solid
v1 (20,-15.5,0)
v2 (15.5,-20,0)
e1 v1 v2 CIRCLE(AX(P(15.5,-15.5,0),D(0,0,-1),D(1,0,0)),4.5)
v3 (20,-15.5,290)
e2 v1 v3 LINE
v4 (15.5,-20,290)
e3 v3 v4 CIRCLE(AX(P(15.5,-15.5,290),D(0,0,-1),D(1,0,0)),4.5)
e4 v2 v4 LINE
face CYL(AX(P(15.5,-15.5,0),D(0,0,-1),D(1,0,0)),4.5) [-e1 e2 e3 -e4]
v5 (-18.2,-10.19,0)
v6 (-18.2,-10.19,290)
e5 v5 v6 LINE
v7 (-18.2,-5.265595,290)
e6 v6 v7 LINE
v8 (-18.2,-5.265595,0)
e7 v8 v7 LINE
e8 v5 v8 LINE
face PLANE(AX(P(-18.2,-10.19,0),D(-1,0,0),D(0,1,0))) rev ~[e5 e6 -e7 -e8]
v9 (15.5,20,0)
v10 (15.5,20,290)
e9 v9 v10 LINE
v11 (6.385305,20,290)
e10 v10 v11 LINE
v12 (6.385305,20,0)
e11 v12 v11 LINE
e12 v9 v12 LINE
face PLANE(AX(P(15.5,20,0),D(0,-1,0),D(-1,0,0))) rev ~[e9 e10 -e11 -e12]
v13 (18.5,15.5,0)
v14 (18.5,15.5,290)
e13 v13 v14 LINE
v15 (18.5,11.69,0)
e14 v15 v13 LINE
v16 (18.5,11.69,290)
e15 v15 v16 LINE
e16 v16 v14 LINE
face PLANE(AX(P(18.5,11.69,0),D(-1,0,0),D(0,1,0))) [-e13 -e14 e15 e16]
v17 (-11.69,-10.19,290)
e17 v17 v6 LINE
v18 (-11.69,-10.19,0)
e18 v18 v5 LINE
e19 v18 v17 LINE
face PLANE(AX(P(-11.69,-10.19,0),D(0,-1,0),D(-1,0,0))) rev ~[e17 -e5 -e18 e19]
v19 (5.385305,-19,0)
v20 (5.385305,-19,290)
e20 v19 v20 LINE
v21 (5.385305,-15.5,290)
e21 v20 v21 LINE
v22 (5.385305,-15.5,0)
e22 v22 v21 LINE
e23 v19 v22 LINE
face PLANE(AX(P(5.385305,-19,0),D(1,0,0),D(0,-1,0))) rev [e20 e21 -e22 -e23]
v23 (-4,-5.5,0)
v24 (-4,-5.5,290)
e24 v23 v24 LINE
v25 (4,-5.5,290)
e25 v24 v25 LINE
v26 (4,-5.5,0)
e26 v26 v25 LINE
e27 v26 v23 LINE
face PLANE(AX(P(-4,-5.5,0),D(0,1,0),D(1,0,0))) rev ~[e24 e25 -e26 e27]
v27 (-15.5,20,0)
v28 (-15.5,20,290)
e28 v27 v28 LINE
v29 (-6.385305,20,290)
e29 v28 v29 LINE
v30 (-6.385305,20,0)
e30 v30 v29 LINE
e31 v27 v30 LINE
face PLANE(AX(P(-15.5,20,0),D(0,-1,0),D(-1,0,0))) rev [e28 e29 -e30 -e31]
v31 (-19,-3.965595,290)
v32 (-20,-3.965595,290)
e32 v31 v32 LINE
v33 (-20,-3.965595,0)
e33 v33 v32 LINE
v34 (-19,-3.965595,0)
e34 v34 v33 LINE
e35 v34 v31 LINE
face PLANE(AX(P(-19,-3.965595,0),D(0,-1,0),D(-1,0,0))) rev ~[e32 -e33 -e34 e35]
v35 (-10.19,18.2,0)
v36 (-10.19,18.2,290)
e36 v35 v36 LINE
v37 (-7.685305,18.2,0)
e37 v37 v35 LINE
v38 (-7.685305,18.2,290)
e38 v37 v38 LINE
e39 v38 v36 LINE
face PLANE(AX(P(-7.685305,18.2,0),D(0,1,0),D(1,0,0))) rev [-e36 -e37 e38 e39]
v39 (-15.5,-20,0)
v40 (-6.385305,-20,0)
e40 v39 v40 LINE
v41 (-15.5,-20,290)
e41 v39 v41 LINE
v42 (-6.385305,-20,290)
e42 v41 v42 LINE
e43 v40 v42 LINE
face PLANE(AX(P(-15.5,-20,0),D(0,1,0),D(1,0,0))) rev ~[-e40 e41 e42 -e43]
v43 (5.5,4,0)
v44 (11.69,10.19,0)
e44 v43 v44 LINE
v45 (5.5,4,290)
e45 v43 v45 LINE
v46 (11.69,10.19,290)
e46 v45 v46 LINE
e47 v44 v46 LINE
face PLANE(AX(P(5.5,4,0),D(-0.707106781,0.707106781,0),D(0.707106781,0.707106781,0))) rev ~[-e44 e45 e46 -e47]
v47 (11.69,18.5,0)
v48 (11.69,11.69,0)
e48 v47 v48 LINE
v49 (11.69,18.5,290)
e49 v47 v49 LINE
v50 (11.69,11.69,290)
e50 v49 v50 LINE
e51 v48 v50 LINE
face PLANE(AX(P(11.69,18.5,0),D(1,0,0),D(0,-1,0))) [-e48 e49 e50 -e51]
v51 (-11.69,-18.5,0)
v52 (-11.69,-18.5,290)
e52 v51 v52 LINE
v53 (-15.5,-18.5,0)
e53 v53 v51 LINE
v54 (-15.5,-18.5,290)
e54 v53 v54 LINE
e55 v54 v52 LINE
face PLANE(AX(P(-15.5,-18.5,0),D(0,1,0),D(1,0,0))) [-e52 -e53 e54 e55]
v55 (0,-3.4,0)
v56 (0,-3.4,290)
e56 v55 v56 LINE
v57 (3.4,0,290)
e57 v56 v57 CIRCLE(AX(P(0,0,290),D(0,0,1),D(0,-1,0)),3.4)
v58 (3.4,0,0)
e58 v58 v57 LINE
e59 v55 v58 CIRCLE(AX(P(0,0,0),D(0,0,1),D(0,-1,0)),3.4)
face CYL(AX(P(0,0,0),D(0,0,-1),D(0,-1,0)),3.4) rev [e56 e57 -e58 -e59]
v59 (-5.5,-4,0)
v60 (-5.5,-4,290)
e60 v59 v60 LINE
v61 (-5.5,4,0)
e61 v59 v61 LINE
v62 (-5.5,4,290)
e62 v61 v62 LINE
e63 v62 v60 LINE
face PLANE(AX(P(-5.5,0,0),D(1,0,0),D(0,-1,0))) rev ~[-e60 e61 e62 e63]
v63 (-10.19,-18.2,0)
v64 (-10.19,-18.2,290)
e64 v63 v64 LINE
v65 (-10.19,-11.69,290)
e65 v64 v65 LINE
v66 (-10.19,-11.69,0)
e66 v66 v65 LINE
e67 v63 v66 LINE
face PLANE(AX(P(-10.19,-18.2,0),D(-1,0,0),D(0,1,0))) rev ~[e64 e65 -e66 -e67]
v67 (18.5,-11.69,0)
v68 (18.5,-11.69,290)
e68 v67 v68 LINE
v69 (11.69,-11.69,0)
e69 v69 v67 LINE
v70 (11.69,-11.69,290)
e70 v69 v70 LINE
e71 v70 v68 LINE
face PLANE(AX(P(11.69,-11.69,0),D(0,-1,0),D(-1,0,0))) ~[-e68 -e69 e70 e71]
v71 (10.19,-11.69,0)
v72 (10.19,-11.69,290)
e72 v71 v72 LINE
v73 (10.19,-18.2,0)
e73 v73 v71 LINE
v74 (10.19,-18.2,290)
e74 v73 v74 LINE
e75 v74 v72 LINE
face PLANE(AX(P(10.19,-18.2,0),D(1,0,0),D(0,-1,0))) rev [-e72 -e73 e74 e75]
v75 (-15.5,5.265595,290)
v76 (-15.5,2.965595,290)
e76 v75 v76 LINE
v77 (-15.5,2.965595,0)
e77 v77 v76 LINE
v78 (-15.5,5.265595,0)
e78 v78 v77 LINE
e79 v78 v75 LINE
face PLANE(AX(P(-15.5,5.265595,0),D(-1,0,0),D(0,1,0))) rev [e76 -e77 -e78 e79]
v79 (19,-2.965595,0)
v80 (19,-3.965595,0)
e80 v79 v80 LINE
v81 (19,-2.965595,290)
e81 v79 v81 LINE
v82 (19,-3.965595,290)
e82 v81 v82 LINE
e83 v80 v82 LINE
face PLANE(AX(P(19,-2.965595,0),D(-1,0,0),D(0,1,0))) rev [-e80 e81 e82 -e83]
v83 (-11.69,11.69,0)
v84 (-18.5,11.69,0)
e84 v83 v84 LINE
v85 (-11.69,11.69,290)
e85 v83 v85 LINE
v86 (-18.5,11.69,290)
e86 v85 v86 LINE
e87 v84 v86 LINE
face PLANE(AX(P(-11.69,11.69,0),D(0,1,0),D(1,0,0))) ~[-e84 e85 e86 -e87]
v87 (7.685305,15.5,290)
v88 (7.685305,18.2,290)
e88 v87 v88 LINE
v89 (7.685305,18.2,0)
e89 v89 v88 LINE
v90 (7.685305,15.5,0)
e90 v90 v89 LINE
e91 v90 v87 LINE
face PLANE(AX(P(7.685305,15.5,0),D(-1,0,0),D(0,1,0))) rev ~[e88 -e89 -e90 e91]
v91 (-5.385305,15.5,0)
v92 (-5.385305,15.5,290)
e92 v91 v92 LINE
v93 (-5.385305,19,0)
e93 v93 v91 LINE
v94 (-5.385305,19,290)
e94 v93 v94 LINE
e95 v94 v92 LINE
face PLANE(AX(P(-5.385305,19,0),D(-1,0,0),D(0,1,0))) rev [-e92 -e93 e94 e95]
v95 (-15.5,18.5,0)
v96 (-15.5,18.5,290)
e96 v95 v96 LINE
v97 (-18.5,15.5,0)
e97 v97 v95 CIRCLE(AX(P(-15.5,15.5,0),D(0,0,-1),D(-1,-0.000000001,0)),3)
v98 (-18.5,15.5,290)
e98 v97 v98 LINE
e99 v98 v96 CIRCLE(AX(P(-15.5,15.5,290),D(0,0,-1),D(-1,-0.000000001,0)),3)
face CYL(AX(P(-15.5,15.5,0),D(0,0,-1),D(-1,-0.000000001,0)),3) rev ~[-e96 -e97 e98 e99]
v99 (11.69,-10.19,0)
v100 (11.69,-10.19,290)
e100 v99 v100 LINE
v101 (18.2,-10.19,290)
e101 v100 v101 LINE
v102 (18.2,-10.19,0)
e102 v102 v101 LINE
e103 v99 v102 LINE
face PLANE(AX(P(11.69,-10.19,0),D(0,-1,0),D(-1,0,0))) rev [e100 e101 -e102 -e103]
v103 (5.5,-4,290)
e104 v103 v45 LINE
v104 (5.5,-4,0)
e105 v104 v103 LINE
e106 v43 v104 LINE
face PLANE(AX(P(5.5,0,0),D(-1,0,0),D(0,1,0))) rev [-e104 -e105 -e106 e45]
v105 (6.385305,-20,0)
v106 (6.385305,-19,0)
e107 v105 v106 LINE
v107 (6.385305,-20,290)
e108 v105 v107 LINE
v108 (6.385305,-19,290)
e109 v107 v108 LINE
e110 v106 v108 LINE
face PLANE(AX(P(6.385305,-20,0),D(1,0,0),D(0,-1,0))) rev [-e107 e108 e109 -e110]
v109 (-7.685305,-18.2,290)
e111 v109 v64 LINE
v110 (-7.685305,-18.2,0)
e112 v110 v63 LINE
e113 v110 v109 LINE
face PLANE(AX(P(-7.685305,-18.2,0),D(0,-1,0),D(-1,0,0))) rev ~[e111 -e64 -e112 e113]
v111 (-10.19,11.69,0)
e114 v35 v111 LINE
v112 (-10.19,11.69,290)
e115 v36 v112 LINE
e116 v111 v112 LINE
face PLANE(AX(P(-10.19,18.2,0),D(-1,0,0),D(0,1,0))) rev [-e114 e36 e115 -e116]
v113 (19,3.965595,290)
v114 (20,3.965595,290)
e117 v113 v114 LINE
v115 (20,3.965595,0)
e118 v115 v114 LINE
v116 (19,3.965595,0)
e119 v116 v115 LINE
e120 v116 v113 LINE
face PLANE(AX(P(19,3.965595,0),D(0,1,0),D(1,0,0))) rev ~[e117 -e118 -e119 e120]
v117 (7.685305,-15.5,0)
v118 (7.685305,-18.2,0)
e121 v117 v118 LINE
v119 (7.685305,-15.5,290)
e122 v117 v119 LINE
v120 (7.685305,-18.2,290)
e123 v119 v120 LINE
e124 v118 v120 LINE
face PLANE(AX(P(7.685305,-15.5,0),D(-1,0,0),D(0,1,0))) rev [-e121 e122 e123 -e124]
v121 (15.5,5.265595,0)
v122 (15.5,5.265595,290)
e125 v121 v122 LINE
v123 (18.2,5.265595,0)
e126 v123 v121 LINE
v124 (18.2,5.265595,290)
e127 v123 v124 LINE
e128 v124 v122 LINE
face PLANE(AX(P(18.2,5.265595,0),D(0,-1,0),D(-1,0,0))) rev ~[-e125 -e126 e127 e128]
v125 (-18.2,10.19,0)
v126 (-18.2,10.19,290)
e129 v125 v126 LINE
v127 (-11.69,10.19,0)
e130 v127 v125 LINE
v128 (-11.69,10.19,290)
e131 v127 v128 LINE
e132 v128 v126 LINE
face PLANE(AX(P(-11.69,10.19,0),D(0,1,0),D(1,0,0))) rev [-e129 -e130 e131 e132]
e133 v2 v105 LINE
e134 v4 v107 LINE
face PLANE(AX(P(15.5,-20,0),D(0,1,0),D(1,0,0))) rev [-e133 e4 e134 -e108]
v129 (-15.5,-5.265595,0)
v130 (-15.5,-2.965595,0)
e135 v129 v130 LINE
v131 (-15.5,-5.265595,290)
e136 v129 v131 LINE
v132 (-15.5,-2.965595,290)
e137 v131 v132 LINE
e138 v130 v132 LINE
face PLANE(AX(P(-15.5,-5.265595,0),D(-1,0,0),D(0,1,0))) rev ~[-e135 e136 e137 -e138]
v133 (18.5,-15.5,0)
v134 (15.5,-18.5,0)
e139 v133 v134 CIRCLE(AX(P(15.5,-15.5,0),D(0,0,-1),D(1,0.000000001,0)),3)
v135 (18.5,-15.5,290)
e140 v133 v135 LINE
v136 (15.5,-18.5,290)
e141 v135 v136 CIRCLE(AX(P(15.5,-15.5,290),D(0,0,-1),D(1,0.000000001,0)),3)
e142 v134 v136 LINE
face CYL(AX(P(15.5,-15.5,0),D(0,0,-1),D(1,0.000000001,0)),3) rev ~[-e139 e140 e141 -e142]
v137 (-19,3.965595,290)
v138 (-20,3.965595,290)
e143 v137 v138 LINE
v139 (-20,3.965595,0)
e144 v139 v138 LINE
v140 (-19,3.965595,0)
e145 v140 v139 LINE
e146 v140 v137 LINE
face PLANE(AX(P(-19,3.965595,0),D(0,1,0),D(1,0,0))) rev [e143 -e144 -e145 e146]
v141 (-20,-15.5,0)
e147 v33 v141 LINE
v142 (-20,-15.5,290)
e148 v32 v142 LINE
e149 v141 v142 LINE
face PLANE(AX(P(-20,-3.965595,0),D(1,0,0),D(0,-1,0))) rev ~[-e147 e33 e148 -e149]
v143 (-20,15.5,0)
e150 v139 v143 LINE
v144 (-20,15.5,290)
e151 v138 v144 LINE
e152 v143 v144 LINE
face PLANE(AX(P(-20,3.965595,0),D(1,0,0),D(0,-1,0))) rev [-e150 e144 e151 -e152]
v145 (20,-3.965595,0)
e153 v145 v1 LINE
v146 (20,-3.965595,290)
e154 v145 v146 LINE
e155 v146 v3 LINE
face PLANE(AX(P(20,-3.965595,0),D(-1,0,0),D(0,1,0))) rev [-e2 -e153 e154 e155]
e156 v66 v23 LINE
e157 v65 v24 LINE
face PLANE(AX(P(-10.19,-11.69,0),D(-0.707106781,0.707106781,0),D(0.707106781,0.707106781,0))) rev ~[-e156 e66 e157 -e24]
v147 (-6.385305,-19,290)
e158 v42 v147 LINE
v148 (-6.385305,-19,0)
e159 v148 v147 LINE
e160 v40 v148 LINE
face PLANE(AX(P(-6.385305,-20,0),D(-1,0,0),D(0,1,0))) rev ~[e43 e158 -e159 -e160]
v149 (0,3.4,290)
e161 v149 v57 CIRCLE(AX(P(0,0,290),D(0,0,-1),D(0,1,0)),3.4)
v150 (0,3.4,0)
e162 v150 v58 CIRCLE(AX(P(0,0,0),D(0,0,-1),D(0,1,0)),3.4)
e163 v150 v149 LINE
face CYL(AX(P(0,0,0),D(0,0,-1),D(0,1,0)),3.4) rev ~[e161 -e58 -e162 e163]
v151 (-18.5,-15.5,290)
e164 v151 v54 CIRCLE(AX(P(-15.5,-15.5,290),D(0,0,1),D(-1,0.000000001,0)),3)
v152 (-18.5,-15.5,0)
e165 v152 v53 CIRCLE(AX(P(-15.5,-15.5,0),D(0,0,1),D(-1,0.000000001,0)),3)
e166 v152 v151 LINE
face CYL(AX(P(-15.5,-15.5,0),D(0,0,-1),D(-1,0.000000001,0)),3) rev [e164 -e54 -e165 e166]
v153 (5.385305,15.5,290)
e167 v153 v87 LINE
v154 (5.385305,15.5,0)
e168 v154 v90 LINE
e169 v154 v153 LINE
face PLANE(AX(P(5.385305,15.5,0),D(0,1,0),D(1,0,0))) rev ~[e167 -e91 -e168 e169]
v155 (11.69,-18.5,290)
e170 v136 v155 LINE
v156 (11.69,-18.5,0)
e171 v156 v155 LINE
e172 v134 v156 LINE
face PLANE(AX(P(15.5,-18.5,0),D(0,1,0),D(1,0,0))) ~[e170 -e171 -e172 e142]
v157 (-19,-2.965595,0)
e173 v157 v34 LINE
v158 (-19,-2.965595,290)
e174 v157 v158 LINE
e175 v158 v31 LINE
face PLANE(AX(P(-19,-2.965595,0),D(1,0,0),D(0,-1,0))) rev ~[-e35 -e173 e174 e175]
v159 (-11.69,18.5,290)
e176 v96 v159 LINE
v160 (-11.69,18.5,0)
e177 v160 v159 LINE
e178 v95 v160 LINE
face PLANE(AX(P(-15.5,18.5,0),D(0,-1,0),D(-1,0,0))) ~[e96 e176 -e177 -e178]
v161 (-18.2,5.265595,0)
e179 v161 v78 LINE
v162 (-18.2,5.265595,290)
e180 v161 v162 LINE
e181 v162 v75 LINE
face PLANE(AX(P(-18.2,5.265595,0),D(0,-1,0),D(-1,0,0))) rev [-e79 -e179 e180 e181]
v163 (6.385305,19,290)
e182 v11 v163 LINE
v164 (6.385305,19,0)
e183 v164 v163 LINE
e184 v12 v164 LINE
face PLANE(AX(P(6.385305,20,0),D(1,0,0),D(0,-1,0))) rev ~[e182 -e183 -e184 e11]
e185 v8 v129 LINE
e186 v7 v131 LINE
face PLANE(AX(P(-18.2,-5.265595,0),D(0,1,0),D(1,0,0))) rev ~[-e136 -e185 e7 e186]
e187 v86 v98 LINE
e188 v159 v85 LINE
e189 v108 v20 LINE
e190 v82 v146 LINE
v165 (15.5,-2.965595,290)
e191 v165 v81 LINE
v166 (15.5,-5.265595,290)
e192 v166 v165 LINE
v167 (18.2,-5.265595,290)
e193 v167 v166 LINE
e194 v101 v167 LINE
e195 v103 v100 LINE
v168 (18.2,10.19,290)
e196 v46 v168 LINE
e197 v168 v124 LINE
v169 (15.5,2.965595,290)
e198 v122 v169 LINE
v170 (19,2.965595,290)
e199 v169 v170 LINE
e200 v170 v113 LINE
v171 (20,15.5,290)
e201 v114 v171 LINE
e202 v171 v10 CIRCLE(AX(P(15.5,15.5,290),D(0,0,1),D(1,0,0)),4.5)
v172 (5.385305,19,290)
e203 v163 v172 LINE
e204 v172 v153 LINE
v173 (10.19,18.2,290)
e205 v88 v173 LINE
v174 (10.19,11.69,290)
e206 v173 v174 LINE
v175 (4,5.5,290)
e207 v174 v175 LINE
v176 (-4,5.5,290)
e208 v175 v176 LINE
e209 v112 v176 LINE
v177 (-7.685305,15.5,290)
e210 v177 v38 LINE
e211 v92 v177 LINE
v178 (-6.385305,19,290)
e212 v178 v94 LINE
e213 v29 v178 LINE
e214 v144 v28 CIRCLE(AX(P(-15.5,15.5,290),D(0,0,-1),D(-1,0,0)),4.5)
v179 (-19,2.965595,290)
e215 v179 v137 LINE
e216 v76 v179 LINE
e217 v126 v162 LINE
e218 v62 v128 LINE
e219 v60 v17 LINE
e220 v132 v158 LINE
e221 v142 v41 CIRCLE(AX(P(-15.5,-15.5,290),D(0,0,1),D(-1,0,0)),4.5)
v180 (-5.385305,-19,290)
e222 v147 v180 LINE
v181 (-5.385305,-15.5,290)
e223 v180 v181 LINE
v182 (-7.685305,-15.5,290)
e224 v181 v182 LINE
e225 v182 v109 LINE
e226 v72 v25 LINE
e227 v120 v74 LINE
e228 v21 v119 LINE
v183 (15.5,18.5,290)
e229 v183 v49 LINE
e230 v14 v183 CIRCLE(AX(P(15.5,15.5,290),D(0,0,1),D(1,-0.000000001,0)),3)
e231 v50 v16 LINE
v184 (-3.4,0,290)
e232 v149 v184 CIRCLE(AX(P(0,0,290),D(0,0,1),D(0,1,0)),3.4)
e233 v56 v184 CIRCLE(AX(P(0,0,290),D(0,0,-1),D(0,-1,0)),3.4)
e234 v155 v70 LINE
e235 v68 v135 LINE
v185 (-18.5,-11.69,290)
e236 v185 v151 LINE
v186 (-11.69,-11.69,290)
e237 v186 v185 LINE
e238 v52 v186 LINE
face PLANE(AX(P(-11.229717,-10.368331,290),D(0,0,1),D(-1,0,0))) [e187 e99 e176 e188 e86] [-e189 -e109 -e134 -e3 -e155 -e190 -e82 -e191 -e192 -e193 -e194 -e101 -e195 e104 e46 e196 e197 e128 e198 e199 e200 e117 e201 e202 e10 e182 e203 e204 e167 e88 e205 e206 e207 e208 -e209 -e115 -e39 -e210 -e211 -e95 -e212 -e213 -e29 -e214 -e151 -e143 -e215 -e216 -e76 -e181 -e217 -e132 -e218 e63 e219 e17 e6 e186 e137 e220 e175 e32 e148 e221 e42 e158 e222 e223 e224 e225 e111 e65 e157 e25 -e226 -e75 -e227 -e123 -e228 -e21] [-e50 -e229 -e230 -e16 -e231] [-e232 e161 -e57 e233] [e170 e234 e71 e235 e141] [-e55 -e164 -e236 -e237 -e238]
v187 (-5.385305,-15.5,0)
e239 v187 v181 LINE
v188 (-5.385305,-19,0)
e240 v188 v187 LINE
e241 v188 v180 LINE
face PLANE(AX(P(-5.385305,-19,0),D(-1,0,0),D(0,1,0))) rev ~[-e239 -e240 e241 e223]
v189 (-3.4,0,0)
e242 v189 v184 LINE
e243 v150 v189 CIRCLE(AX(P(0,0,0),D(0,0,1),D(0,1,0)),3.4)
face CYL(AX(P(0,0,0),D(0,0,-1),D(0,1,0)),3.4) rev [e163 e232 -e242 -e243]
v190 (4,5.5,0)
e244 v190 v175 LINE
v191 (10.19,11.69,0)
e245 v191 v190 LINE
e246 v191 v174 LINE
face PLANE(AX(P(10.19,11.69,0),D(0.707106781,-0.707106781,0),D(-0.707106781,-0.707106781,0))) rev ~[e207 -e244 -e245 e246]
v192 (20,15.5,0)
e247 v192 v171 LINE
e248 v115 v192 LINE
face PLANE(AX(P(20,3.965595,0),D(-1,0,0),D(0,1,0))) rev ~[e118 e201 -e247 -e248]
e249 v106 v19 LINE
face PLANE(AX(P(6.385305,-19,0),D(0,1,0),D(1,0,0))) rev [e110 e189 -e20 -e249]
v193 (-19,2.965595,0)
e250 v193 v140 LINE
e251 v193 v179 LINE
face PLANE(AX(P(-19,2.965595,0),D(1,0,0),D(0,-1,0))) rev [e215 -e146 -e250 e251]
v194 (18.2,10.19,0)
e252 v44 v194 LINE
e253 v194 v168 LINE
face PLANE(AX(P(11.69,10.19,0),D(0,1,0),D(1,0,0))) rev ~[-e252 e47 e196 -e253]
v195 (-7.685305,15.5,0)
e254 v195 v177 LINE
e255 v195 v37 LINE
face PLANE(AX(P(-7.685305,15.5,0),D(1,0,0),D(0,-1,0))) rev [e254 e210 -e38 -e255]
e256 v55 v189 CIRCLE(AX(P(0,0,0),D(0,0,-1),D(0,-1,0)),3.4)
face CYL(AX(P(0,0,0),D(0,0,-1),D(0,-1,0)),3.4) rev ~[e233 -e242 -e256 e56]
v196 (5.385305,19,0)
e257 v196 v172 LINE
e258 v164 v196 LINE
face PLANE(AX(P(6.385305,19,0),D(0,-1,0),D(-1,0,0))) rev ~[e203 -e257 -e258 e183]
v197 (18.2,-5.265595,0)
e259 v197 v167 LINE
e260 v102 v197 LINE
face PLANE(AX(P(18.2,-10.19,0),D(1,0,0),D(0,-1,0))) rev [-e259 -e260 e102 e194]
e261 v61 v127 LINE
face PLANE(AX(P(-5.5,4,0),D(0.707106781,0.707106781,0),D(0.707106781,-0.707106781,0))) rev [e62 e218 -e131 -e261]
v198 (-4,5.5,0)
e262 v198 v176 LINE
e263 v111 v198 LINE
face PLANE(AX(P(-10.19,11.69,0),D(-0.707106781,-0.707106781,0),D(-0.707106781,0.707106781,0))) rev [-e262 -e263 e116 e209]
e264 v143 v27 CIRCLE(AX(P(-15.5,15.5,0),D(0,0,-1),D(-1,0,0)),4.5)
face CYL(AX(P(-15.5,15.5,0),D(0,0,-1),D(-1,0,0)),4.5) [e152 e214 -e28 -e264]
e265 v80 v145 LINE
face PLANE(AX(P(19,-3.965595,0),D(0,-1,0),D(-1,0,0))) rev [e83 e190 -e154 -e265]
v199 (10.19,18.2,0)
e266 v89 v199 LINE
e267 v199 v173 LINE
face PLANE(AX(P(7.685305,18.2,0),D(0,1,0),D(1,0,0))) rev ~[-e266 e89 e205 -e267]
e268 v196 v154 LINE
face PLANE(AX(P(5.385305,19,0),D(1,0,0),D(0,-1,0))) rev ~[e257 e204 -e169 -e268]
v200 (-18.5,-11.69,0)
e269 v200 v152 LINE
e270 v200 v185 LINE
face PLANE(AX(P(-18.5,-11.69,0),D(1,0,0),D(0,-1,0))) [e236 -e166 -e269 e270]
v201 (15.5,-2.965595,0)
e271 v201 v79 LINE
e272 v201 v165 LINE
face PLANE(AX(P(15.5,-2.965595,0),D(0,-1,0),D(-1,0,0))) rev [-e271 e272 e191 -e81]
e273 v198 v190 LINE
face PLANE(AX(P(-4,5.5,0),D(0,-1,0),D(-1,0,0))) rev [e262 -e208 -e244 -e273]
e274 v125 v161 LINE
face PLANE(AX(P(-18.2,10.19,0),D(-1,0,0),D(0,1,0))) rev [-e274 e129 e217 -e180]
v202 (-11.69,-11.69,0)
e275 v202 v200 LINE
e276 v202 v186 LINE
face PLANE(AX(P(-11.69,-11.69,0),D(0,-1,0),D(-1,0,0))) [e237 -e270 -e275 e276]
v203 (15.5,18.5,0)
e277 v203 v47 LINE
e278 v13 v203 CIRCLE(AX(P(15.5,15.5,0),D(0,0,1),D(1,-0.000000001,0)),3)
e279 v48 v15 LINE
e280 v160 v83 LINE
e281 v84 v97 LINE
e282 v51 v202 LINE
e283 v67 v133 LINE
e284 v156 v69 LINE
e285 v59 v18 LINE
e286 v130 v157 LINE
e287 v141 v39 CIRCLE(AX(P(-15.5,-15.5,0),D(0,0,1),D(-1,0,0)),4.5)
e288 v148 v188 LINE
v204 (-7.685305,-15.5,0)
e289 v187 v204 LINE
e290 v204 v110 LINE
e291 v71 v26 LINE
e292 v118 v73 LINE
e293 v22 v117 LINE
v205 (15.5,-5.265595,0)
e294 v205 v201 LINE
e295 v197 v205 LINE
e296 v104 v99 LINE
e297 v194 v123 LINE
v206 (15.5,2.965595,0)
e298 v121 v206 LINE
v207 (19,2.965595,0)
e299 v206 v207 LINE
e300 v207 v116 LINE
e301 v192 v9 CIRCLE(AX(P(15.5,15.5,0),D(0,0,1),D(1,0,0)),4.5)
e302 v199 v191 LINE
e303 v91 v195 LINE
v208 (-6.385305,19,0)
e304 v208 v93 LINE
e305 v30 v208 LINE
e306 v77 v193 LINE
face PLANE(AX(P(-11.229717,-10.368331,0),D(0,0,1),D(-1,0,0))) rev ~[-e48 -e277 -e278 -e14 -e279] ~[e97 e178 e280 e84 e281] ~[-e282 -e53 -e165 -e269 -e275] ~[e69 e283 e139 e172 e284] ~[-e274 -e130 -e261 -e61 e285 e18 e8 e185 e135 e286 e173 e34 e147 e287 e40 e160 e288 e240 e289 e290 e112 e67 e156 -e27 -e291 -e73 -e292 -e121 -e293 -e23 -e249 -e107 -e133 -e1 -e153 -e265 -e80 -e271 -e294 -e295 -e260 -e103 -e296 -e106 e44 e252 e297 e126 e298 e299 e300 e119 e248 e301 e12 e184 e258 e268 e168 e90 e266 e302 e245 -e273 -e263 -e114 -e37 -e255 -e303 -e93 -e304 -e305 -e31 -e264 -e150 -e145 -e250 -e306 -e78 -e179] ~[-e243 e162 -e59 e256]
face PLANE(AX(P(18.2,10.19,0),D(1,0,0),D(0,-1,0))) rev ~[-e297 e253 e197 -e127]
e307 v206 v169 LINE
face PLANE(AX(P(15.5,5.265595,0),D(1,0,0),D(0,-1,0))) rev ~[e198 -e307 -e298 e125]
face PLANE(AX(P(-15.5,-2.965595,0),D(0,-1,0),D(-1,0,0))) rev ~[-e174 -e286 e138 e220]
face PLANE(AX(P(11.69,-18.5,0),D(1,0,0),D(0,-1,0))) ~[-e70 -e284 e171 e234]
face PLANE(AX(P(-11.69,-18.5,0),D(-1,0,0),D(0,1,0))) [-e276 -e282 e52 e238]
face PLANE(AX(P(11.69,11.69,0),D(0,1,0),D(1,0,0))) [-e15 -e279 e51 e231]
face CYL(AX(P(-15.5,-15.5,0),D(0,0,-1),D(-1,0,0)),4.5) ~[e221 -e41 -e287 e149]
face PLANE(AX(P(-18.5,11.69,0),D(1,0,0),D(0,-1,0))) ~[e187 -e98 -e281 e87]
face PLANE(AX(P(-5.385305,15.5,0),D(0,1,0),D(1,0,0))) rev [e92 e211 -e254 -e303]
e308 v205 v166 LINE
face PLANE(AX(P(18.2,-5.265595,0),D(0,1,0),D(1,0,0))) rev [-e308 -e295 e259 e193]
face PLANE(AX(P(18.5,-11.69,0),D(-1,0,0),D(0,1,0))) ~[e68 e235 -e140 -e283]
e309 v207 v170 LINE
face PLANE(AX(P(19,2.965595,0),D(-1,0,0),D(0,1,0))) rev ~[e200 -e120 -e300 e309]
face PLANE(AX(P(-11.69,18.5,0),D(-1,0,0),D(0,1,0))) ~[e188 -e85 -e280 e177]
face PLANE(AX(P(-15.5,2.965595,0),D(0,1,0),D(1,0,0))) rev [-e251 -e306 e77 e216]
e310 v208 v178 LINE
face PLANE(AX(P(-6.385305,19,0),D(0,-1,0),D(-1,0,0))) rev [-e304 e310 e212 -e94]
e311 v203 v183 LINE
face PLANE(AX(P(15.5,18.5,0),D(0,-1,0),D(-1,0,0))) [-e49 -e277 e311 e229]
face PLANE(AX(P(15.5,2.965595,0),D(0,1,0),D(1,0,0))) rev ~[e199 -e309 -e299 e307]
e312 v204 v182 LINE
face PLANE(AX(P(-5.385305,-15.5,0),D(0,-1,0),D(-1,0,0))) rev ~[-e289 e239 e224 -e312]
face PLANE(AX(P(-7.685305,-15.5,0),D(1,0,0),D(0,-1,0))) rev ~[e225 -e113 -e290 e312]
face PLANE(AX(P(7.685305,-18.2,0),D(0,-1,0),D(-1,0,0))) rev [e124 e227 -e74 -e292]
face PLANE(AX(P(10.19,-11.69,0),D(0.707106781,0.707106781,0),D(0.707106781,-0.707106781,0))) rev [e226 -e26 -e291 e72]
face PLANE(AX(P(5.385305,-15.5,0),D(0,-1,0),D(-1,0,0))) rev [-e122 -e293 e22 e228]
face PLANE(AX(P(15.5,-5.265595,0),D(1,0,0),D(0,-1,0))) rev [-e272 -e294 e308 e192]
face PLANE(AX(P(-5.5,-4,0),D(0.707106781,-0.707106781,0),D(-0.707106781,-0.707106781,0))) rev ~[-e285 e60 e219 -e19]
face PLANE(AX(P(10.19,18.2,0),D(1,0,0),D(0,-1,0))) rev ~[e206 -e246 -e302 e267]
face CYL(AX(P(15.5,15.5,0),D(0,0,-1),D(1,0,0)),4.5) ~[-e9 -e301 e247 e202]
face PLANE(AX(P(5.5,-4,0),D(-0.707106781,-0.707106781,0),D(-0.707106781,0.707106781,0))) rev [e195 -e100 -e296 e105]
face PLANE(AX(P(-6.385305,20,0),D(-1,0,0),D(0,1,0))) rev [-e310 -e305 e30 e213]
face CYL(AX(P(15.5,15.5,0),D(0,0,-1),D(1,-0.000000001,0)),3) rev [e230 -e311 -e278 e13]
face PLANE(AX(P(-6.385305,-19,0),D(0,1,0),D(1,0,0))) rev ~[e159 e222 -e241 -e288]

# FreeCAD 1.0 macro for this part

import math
import FreeCAD as App
import Part
import Sketcher

V = App.Vector
Q = App.Units.Quantity

doc = App.newDocument("Part")
params = doc.addObject("Spreadsheet::Sheet", "Params")
for row, (alias, value) in enumerate([
    ("sketch1_radius", "3 mm"),
    ("sketch1_radius2", "4.5 mm"),
    ("sketch1_radius3", "3.4 mm"),
    ("sketch1_width", "1 mm"),
    ("sketch1_width2", "4 mm"),
    ("pad1_length", "290 mm"),
    ("sketch2_radius", "3 mm"),
    ("sketch2_radius2", "4.5 mm"),
    ("sketch2_radius3", "3.4 mm"),
    ("sketch2_width", "1 mm"),
    ("sketch2_width2", "4 mm"),
    ("pad2_length", "290 mm"),
    ("sketch3_radius", "3 mm"),
    ("sketch3_radius2", "3.4 mm"),
    ("sketch3_radius3", "4.5 mm"),
    ("sketch3_width", "4 mm"),
    ("sketch3_width2", "1 mm"),
    ("pad3_length", "290 mm"),
], start=1):
    params.set(f"A{row}", alias)
    params.set(f"B{row}", "=" + value)
    params.setAlias(f"B{row}", alias)

body = doc.addObject("PartDesign::Body", "Body")

sketch1 = doc.addObject("Sketcher::SketchObject", "Sketch")
body.addObject(sketch1)
sketch1.AttachmentSupport = (doc.XY_Plane, [""])
sketch1.MapMode = "FlatFace"
sketch1.addGeometry(Part.LineSegment(V(3.4, 0, 0), V(5.5, 0, 0)), False)
sketch1.addGeometry(Part.LineSegment(V(5.5, 0, 0), V(5.5, 4, 0)), False)
sketch1.addGeometry(Part.LineSegment(V(5.5, 4, 0), V(11.7, 10.2, 0)), False)
sketch1.addGeometry(Part.LineSegment(V(11.7, 10.2, 0), V(18.2, 10.2, 0)), False)
sketch1.addGeometry(Part.LineSegment(V(18.2, 10.2, 0), V(18.2, 5.3, 0)), False)
sketch1.addGeometry(Part.LineSegment(V(18.2, 5.3, 0), V(15.5, 5.3, 0)), False)
sketch1.addGeometry(Part.LineSegment(V(15.5, 5.3, 0), V(15.5, 3, 0)), False)
sketch1.addGeometry(Part.LineSegment(V(15.5, 3, 0), V(19, 3, 0)), False)
sketch1.addGeometry(Part.LineSegment(V(19, 3, 0), V(19, 4, 0)), False)
sketch1.addGeometry(Part.LineSegment(V(19, 4, 0), V(20, 4, 0)), False)
sketch1.addGeometry(Part.LineSegment(V(20, 4, 0), V(20, 15.5, 0)), False)
sketch1.addGeometry(Part.ArcOfCircle(Part.Circle(V(15.5, 15.5, 0), V(0, 0, 1), 4.5), math.radians(0), math.radians(90)), False)
sketch1.addGeometry(Part.LineSegment(V(15.5, 20, 0), V(6.4, 20, 0)), False)
sketch1.addGeometry(Part.LineSegment(V(6.4, 20, 0), V(6.4, 19, 0)), False)
sketch1.addGeometry(Part.LineSegment(V(6.4, 19, 0), V(5.4, 19, 0)), False)
sketch1.addGeometry(Part.LineSegment(V(5.4, 19, 0), V(5.4, 15.5, 0)), False)
sketch1.addGeometry(Part.LineSegment(V(5.4, 15.5, 0), V(7.7, 15.5, 0)), False)
sketch1.addGeometry(Part.LineSegment(V(7.7, 15.5, 0), V(7.7, 18.2, 0)), False)
sketch1.addGeometry(Part.LineSegment(V(7.7, 18.2, 0), V(10.2, 18.2, 0)), False)
sketch1.addGeometry(Part.LineSegment(V(10.2, 18.2, 0), V(10.2, 11.7, 0)), False)
sketch1.addGeometry(Part.LineSegment(V(10.2, 11.7, 0), V(4, 5.5, 0)), False)
sketch1.addGeometry(Part.LineSegment(V(4, 5.5, 0), V(0, 5.5, 0)), False)
sketch1.addGeometry(Part.LineSegment(V(0, 5.5, 0), V(0, 3.4, 0)), False)
sketch1.addGeometry(Part.ArcOfCircle(Part.Circle(V(0, 0, 0), V(0, 0, 1), 3.4), math.radians(0), math.radians(90)), False)
sketch1.addGeometry(Part.LineSegment(V(18.5, 15.5, 0), V(18.5, 11.7, 0)), False)
sketch1.addGeometry(Part.LineSegment(V(18.5, 11.7, 0), V(11.7, 11.7, 0)), False)
sketch1.addGeometry(Part.LineSegment(V(11.7, 11.7, 0), V(11.7, 18.5, 0)), False)
sketch1.addGeometry(Part.LineSegment(V(11.7, 18.5, 0), V(15.5, 18.5, 0)), False)
sketch1.addGeometry(Part.ArcOfCircle(Part.Circle(V(15.5, 15.5, 0), V(0, 0, 1), 3), math.radians(0), math.radians(90)), False)
sketch1.addConstraint(Sketcher.Constraint("Coincident", 0, 2, 1, 1))
sketch1.addConstraint(Sketcher.Constraint("Coincident", 1, 2, 2, 1))
sketch1.addConstraint(Sketcher.Constraint("Coincident", 2, 2, 3, 1))
sketch1.addConstraint(Sketcher.Constraint("Coincident", 3, 2, 4, 1))
sketch1.addConstraint(Sketcher.Constraint("Coincident", 4, 2, 5, 1))
sketch1.addConstraint(Sketcher.Constraint("Coincident", 5, 2, 6, 1))
sketch1.addConstraint(Sketcher.Constraint("Coincident", 6, 2, 7, 1))
sketch1.addConstraint(Sketcher.Constraint("Coincident", 7, 2, 8, 1))
sketch1.addConstraint(Sketcher.Constraint("Coincident", 8, 2, 9, 1))
sketch1.addConstraint(Sketcher.Constraint("Coincident", 9, 2, 10, 1))
sketch1.addConstraint(Sketcher.Constraint("Tangent", 10, 2, 11, 1))
sketch1.addConstraint(Sketcher.Constraint("Tangent", 11, 2, 12, 1))
sketch1.addConstraint(Sketcher.Constraint("Coincident", 12, 2, 13, 1))
sketch1.addConstraint(Sketcher.Constraint("Coincident", 13, 2, 14, 1))
sketch1.addConstraint(Sketcher.Constraint("Coincident", 14, 2, 15, 1))
sketch1.addConstraint(Sketcher.Constraint("Coincident", 15, 2, 16, 1))
sketch1.addConstraint(Sketcher.Constraint("Coincident", 16, 2, 17, 1))
sketch1.addConstraint(Sketcher.Constraint("Coincident", 17, 2, 18, 1))
sketch1.addConstraint(Sketcher.Constraint("Coincident", 18, 2, 19, 1))
sketch1.addConstraint(Sketcher.Constraint("Coincident", 19, 2, 20, 1))
sketch1.addConstraint(Sketcher.Constraint("Coincident", 20, 2, 21, 1))
sketch1.addConstraint(Sketcher.Constraint("Coincident", 21, 2, 22, 1))
sketch1.addConstraint(Sketcher.Constraint("Coincident", 22, 2, 23, 2))
sketch1.addConstraint(Sketcher.Constraint("Coincident", 23, 1, 0, 1))
sketch1.addConstraint(Sketcher.Constraint("Coincident", 24, 2, 25, 1))
sketch1.addConstraint(Sketcher.Constraint("Coincident", 25, 2, 26, 1))
sketch1.addConstraint(Sketcher.Constraint("Coincident", 26, 2, 27, 1))
sketch1.addConstraint(Sketcher.Constraint("Tangent", 27, 2, 28, 2))
sketch1.addConstraint(Sketcher.Constraint("Tangent", 28, 1, 24, 1))
sketch1.addConstraint(Sketcher.Constraint("Horizontal", 0))
sketch1.addConstraint(Sketcher.Constraint("Vertical", 1))
sketch1.addConstraint(Sketcher.Constraint("Horizontal", 3))
sketch1.addConstraint(Sketcher.Constraint("Vertical", 4))
sketch1.addConstraint(Sketcher.Constraint("Horizontal", 5))
sketch1.addConstraint(Sketcher.Constraint("Vertical", 6))
sketch1.addConstraint(Sketcher.Constraint("Horizontal", 7))
sketch1.addConstraint(Sketcher.Constraint("Vertical", 8))
sketch1.addConstraint(Sketcher.Constraint("Horizontal", 9))
sketch1.addConstraint(Sketcher.Constraint("Vertical", 10))
sketch1.addConstraint(Sketcher.Constraint("Horizontal", 12))
sketch1.addConstraint(Sketcher.Constraint("Vertical", 13))
sketch1.addConstraint(Sketcher.Constraint("Horizontal", 14))
sketch1.addConstraint(Sketcher.Constraint("Vertical", 15))
sketch1.addConstraint(Sketcher.Constraint("Horizontal", 16))
sketch1.addConstraint(Sketcher.Constraint("Vertical", 17))
sketch1.addConstraint(Sketcher.Constraint("Horizontal", 18))
sketch1.addConstraint(Sketcher.Constraint("Vertical", 19))
sketch1.addConstraint(Sketcher.Constraint("Horizontal", 21))
sketch1.addConstraint(Sketcher.Constraint("Vertical", 22))
sketch1.addConstraint(Sketcher.Constraint("Vertical", 24))
sketch1.addConstraint(Sketcher.Constraint("Horizontal", 25))
sketch1.addConstraint(Sketcher.Constraint("Vertical", 26))
sketch1.addConstraint(Sketcher.Constraint("Horizontal", 27))
sketch1.addConstraint(Sketcher.Constraint("Coincident", 23, 3, -1, 1))
sketch1.addConstraint(Sketcher.Constraint("Coincident", 28, 3, 11, 3))
sketch1.addConstraint(Sketcher.Constraint("PointOnObject", 0, 2, -1))
sketch1.addConstraint(Sketcher.Constraint("PointOnObject", 21, 2, -2))
sketch1.addConstraint(Sketcher.Constraint("Parallel", 2, 20))
sketch1.addConstraint(Sketcher.Constraint("Horizontal", 10, 2, 15, 2))
sketch1.addConstraint(Sketcher.Constraint("Horizontal", 19, 2, 24, 2))
sketch1.addConstraint(Sketcher.Constraint("Vertical", 28, 3, 5, 2))
sketch1.addConstraint(Sketcher.Constraint("Vertical", 2, 2, 25, 2))
sketch1.addConstraint(Sketcher.Constraint("Equal", 9, 14))
sketch1.addConstraint(Sketcher.Constraint("Equal", 21, 1))
sketch1.addConstraint(Sketcher.Constraint("Equal", 16, 6))
sketch1.addConstraint(Sketcher.Constraint("Equal", 14, 8))
sketch1.addConstraint(Sketcher.Constraint("Equal", 8, 13))
sketch1.addConstraint(Sketcher.Constraint("Equal", 5, 17))
sketch1.addConstraint(Sketcher.Constraint("Equal", 3, 19))
sketch1.addConstraint(Sketcher.Constraint("Equal", 0, 22))
sketch1.addConstraint(Sketcher.Constraint("Equal", 2, 20))
sketch1.addConstraint(Sketcher.Constraint("Radius", 28, Q("3 mm")))
sketch1.addConstraint(Sketcher.Constraint("Radius", 11, Q("4.5 mm")))
sketch1.addConstraint(Sketcher.Constraint("Radius", 23, Q("3.4 mm")))
sketch1.addConstraint(Sketcher.Constraint("DistanceX", 9, 1, 9, 2, Q("1 mm")))
sketch1.addConstraint(Sketcher.Constraint("DistanceX", 21, 2, 21, 1, Q("4 mm")))
sketch1.addConstraint(Sketcher.Constraint("Angle", 2, Q("45 deg")))
sketch1.addConstraint(Sketcher.Constraint("DistanceX", 0, 1, 0, 2, Q("2.1 mm")))
sketch1.addConstraint(Sketcher.Constraint("DistanceX", 5, 2, 5, 1, Q("2.7 mm")))
sketch1.addConstraint(Sketcher.Constraint("DistanceX", 16, 1, 16, 2, Q("2.3 mm")))
sketch1.addConstraint(Sketcher.Constraint("DistanceX", -1, 1, 7, 2, Q("19 mm")))
sketch1.addConstraint(Sketcher.Constraint("DistanceX", 3, 1, 3, 2, Q("6.51 mm")))
sketch1.addConstraint(Sketcher.Constraint("DistanceX", 12, 2, 12, 1, Q("9.114695 mm")))
sketch1.addConstraint(Sketcher.Constraint("DistanceY", 4, 2, 4, 1, Q("4.924405 mm")))
sketch1.setExpression("Constraints[71]", "Params.sketch1_radius")
sketch1.setExpression("Constraints[72]", "Params.sketch1_radius2")
sketch1.setExpression("Constraints[73]", "Params.sketch1_radius3")
sketch1.setExpression("Constraints[74]", "Params.sketch1_width")
sketch1.setExpression("Constraints[75]", "Params.sketch1_width2")
pad1 = doc.addObject("PartDesign::Pad", "Pad")
body.addObject(pad1)
pad1.Profile = sketch1
pad1.setExpression("Length", "Params.pad1_length")
doc.recompute()

mirrored = doc.addObject("PartDesign::Mirrored", "Mirrored")
body.addObject(mirrored)
mirrored.Originals = [pad1]
mirrored.MirrorPlane = (doc.XZ_Plane, [""])
body.Tip = mirrored
doc.recompute()

mirrored2 = doc.addObject("PartDesign::Mirrored", "Mirrored001")
body.addObject(mirrored2)
mirrored2.Originals = [pad1]
mirrored2.MirrorPlane = (doc.YZ_Plane, [""])
body.Tip = mirrored2

sketch2 = doc.addObject("Sketcher::SketchObject", "Sketch001")
body.addObject(sketch2)
sketch2.AttachmentSupport = (doc.XY_Plane, [""])
sketch2.MapMode = "FlatFace"
sketch2.addGeometry(Part.LineSegment(V(-3.4, 0, 0), V(-5.5, 0, 0)), False)
sketch2.addGeometry(Part.LineSegment(V(-5.5, 0, 0), V(-5.5, -4, 0)), False)
sketch2.addGeometry(Part.LineSegment(V(-5.5, -4, 0), V(-11.7, -10.2, 0)), False)
sketch2.addGeometry(Part.LineSegment(V(-11.7, -10.2, 0), V(-18.2, -10.2, 0)), False)
sketch2.addGeometry(Part.LineSegment(V(-18.2, -10.2, 0), V(-18.2, -5.3, 0)), False)
sketch2.addGeometry(Part.LineSegment(V(-18.2, -5.3, 0), V(-15.5, -5.3, 0)), False)
sketch2.addGeometry(Part.LineSegment(V(-15.5, -5.3, 0), V(-15.5, -3, 0)), False)
sketch2.addGeometry(Part.LineSegment(V(-15.5, -3, 0), V(-19, -3, 0)), False)
sketch2.addGeometry(Part.LineSegment(V(-19, -3, 0), V(-19, -4, 0)), False)
sketch2.addGeometry(Part.LineSegment(V(-19, -4, 0), V(-20, -4, 0)), False)
sketch2.addGeometry(Part.LineSegment(V(-20, -4, 0), V(-20, -15.5, 0)), False)
sketch2.addGeometry(Part.ArcOfCircle(Part.Circle(V(-15.5, -15.5, 0), V(0, 0, 1), 4.5), math.radians(-180), math.radians(-90)), False)
sketch2.addGeometry(Part.LineSegment(V(-15.5, -20, 0), V(-6.4, -20, 0)), False)
sketch2.addGeometry(Part.LineSegment(V(-6.4, -20, 0), V(-6.4, -19, 0)), False)
sketch2.addGeometry(Part.LineSegment(V(-6.4, -19, 0), V(-5.4, -19, 0)), False)
sketch2.addGeometry(Part.LineSegment(V(-5.4, -19, 0), V(-5.4, -15.5, 0)), False)
sketch2.addGeometry(Part.LineSegment(V(-5.4, -15.5, 0), V(-7.7, -15.5, 0)), False)
sketch2.addGeometry(Part.LineSegment(V(-7.7, -15.5, 0), V(-7.7, -18.2, 0)), False)
sketch2.addGeometry(Part.LineSegment(V(-7.7, -18.2, 0), V(-10.2, -18.2, 0)), False)
sketch2.addGeometry(Part.LineSegment(V(-10.2, -18.2, 0), V(-10.2, -11.7, 0)), False)
sketch2.addGeometry(Part.LineSegment(V(-10.2, -11.7, 0), V(-4, -5.5, 0)), False)
sketch2.addGeometry(Part.LineSegment(V(-4, -5.5, 0), V(0, -5.5, 0)), False)
sketch2.addGeometry(Part.LineSegment(V(0, -5.5, 0), V(0, -3.4, 0)), False)
sketch2.addGeometry(Part.ArcOfCircle(Part.Circle(V(0, 0, 0), V(0, 0, 1), 3.4), math.radians(180), math.radians(270)), False)
sketch2.addGeometry(Part.LineSegment(V(-18.5, -15.5, 0), V(-18.5, -11.7, 0)), False)
sketch2.addGeometry(Part.LineSegment(V(-18.5, -11.7, 0), V(-11.7, -11.7, 0)), False)
sketch2.addGeometry(Part.LineSegment(V(-11.7, -11.7, 0), V(-11.7, -18.5, 0)), False)
sketch2.addGeometry(Part.LineSegment(V(-11.7, -18.5, 0), V(-15.5, -18.5, 0)), False)
sketch2.addGeometry(Part.ArcOfCircle(Part.Circle(V(-15.5, -15.5, 0), V(0, 0, 1), 3), math.radians(180), math.radians(270)), False)
sketch2.addConstraint(Sketcher.Constraint("Coincident", 0, 2, 1, 1))
sketch2.addConstraint(Sketcher.Constraint("Coincident", 1, 2, 2, 1))
sketch2.addConstraint(Sketcher.Constraint("Coincident", 2, 2, 3, 1))
sketch2.addConstraint(Sketcher.Constraint("Coincident", 3, 2, 4, 1))
sketch2.addConstraint(Sketcher.Constraint("Coincident", 4, 2, 5, 1))
sketch2.addConstraint(Sketcher.Constraint("Coincident", 5, 2, 6, 1))
sketch2.addConstraint(Sketcher.Constraint("Coincident", 6, 2, 7, 1))
sketch2.addConstraint(Sketcher.Constraint("Coincident", 7, 2, 8, 1))
sketch2.addConstraint(Sketcher.Constraint("Coincident", 8, 2, 9, 1))
sketch2.addConstraint(Sketcher.Constraint("Coincident", 9, 2, 10, 1))
sketch2.addConstraint(Sketcher.Constraint("Tangent", 10, 2, 11, 1))
sketch2.addConstraint(Sketcher.Constraint("Tangent", 11, 2, 12, 1))
sketch2.addConstraint(Sketcher.Constraint("Coincident", 12, 2, 13, 1))
sketch2.addConstraint(Sketcher.Constraint("Coincident", 13, 2, 14, 1))
sketch2.addConstraint(Sketcher.Constraint("Coincident", 14, 2, 15, 1))
sketch2.addConstraint(Sketcher.Constraint("Coincident", 15, 2, 16, 1))
sketch2.addConstraint(Sketcher.Constraint("Coincident", 16, 2, 17, 1))
sketch2.addConstraint(Sketcher.Constraint("Coincident", 17, 2, 18, 1))
sketch2.addConstraint(Sketcher.Constraint("Coincident", 18, 2, 19, 1))
sketch2.addConstraint(Sketcher.Constraint("Coincident", 19, 2, 20, 1))
sketch2.addConstraint(Sketcher.Constraint("Coincident", 20, 2, 21, 1))
sketch2.addConstraint(Sketcher.Constraint("Coincident", 21, 2, 22, 1))
sketch2.addConstraint(Sketcher.Constraint("Coincident", 22, 2, 23, 2))
sketch2.addConstraint(Sketcher.Constraint("Coincident", 23, 1, 0, 1))
sketch2.addConstraint(Sketcher.Constraint("Coincident", 24, 2, 25, 1))
sketch2.addConstraint(Sketcher.Constraint("Coincident", 25, 2, 26, 1))
sketch2.addConstraint(Sketcher.Constraint("Coincident", 26, 2, 27, 1))
sketch2.addConstraint(Sketcher.Constraint("Tangent", 27, 2, 28, 2))
sketch2.addConstraint(Sketcher.Constraint("Tangent", 28, 1, 24, 1))
sketch2.addConstraint(Sketcher.Constraint("Horizontal", 0))
sketch2.addConstraint(Sketcher.Constraint("Vertical", 1))
sketch2.addConstraint(Sketcher.Constraint("Horizontal", 3))
sketch2.addConstraint(Sketcher.Constraint("Vertical", 4))
sketch2.addConstraint(Sketcher.Constraint("Horizontal", 5))
sketch2.addConstraint(Sketcher.Constraint("Vertical", 6))
sketch2.addConstraint(Sketcher.Constraint("Horizontal", 7))
sketch2.addConstraint(Sketcher.Constraint("Vertical", 8))
sketch2.addConstraint(Sketcher.Constraint("Horizontal", 9))
sketch2.addConstraint(Sketcher.Constraint("Vertical", 10))
sketch2.addConstraint(Sketcher.Constraint("Horizontal", 12))
sketch2.addConstraint(Sketcher.Constraint("Vertical", 13))
sketch2.addConstraint(Sketcher.Constraint("Horizontal", 14))
sketch2.addConstraint(Sketcher.Constraint("Vertical", 15))
sketch2.addConstraint(Sketcher.Constraint("Horizontal", 16))
sketch2.addConstraint(Sketcher.Constraint("Vertical", 17))
sketch2.addConstraint(Sketcher.Constraint("Horizontal", 18))
sketch2.addConstraint(Sketcher.Constraint("Vertical", 19))
sketch2.addConstraint(Sketcher.Constraint("Horizontal", 21))
sketch2.addConstraint(Sketcher.Constraint("Vertical", 22))
sketch2.addConstraint(Sketcher.Constraint("Vertical", 24))
sketch2.addConstraint(Sketcher.Constraint("Horizontal", 25))
sketch2.addConstraint(Sketcher.Constraint("Vertical", 26))
sketch2.addConstraint(Sketcher.Constraint("Horizontal", 27))
sketch2.addConstraint(Sketcher.Constraint("Coincident", 23, 3, -1, 1))
sketch2.addConstraint(Sketcher.Constraint("Coincident", 28, 3, 11, 3))
sketch2.addConstraint(Sketcher.Constraint("PointOnObject", 0, 2, -1))
sketch2.addConstraint(Sketcher.Constraint("PointOnObject", 21, 2, -2))
sketch2.addConstraint(Sketcher.Constraint("Parallel", 2, 20))
sketch2.addConstraint(Sketcher.Constraint("Horizontal", 10, 2, 15, 2))
sketch2.addConstraint(Sketcher.Constraint("Horizontal", 19, 2, 24, 2))
sketch2.addConstraint(Sketcher.Constraint("Vertical", 28, 3, 5, 2))
sketch2.addConstraint(Sketcher.Constraint("Vertical", 2, 2, 25, 2))
sketch2.addConstraint(Sketcher.Constraint("Equal", 9, 14))
sketch2.addConstraint(Sketcher.Constraint("Equal", 21, 1))
sketch2.addConstraint(Sketcher.Constraint("Equal", 16, 6))
sketch2.addConstraint(Sketcher.Constraint("Equal", 14, 8))
sketch2.addConstraint(Sketcher.Constraint("Equal", 8, 13))
sketch2.addConstraint(Sketcher.Constraint("Equal", 5, 17))
sketch2.addConstraint(Sketcher.Constraint("Equal", 3, 19))
sketch2.addConstraint(Sketcher.Constraint("Equal", 0, 22))
sketch2.addConstraint(Sketcher.Constraint("Equal", 2, 20))
sketch2.addConstraint(Sketcher.Constraint("Radius", 28, Q("3 mm")))
sketch2.addConstraint(Sketcher.Constraint("Radius", 11, Q("4.5 mm")))
sketch2.addConstraint(Sketcher.Constraint("Radius", 23, Q("3.4 mm")))
sketch2.addConstraint(Sketcher.Constraint("DistanceX", 9, 2, 9, 1, Q("1 mm")))
sketch2.addConstraint(Sketcher.Constraint("DistanceX", 21, 1, 21, 2, Q("4 mm")))
sketch2.addConstraint(Sketcher.Constraint("Angle", 2, Q("-135 deg")))
sketch2.addConstraint(Sketcher.Constraint("DistanceX", 0, 2, 0, 1, Q("2.1 mm")))
sketch2.addConstraint(Sketcher.Constraint("DistanceX", 5, 1, 5, 2, Q("2.7 mm")))
sketch2.addConstraint(Sketcher.Constraint("DistanceX", 16, 2, 16, 1, Q("2.3 mm")))
sketch2.addConstraint(Sketcher.Constraint("DistanceX", 7, 2, -1, 1, Q("19 mm")))
sketch2.addConstraint(Sketcher.Constraint("DistanceX", 3, 2, 3, 1, Q("6.51 mm")))
sketch2.addConstraint(Sketcher.Constraint("DistanceX", 12, 1, 12, 2, Q("9.114695 mm")))
sketch2.addConstraint(Sketcher.Constraint("DistanceY", 4, 1, 4, 2, Q("4.924405 mm")))
sketch2.setExpression("Constraints[71]", "Params.sketch2_radius")
sketch2.setExpression("Constraints[72]", "Params.sketch2_radius2")
sketch2.setExpression("Constraints[73]", "Params.sketch2_radius3")
sketch2.setExpression("Constraints[74]", "Params.sketch2_width")
sketch2.setExpression("Constraints[75]", "Params.sketch2_width2")
pad2 = doc.addObject("PartDesign::Pad", "Pad001")
body.addObject(pad2)
pad2.Profile = sketch2
pad2.setExpression("Length", "Params.pad2_length")

sketch3 = doc.addObject("Sketcher::SketchObject", "Sketch002")
body.addObject(sketch3)
sketch3.AttachmentSupport = (doc.XY_Plane, [""])
sketch3.MapMode = "FlatFace"
sketch3.addGeometry(Part.LineSegment(V(5.5, 0, 0), V(3.4, 0, 0)), False)
sketch3.addGeometry(Part.ArcOfCircle(Part.Circle(V(0, 0, 0), V(0, 0, 1), 3.4), math.radians(-90), math.radians(0)), False)
sketch3.addGeometry(Part.LineSegment(V(0, -3.4, 0), V(0, -5.5, 0)), False)
sketch3.addGeometry(Part.LineSegment(V(0, -5.5, 0), V(4, -5.5, 0)), False)
sketch3.addGeometry(Part.LineSegment(V(4, -5.5, 0), V(10.2, -11.7, 0)), False)
sketch3.addGeometry(Part.LineSegment(V(10.2, -11.7, 0), V(10.2, -18.2, 0)), False)
sketch3.addGeometry(Part.LineSegment(V(10.2, -18.2, 0), V(7.7, -18.2, 0)), False)
sketch3.addGeometry(Part.LineSegment(V(7.7, -18.2, 0), V(7.7, -15.5, 0)), False)
sketch3.addGeometry(Part.LineSegment(V(7.7, -15.5, 0), V(5.4, -15.5, 0)), False)
sketch3.addGeometry(Part.LineSegment(V(5.4, -15.5, 0), V(5.4, -19, 0)), False)
sketch3.addGeometry(Part.LineSegment(V(5.4, -19, 0), V(6.4, -19, 0)), False)
sketch3.addGeometry(Part.LineSegment(V(6.4, -19, 0), V(6.4, -20, 0)), False)
sketch3.addGeometry(Part.LineSegment(V(6.4, -20, 0), V(15.5, -20, 0)), False)
sketch3.addGeometry(Part.ArcOfCircle(Part.Circle(V(15.5, -15.5, 0), V(0, 0, 1), 4.5), math.radians(-90), math.radians(0)), False)
sketch3.addGeometry(Part.LineSegment(V(20, -15.5, 0), V(20, -4, 0)), False)
sketch3.addGeometry(Part.LineSegment(V(20, -4, 0), V(19, -4, 0)), False)
sketch3.addGeometry(Part.LineSegment(V(19, -4, 0), V(19, -3, 0)), False)
sketch3.addGeometry(Part.LineSegment(V(19, -3, 0), V(15.5, -3, 0)), False)
sketch3.addGeometry(Part.LineSegment(V(15.5, -3, 0), V(15.5, -5.3, 0)), False)
sketch3.addGeometry(Part.LineSegment(V(15.5, -5.3, 0), V(18.2, -5.3, 0)), False)
sketch3.addGeometry(Part.LineSegment(V(18.2, -5.3, 0), V(18.2, -10.2, 0)), False)
sketch3.addGeometry(Part.LineSegment(V(18.2, -10.2, 0), V(11.7, -10.2, 0)), False)
sketch3.addGeometry(Part.LineSegment(V(11.7, -10.2, 0), V(5.5, -4, 0)), False)
sketch3.addGeometry(Part.LineSegment(V(5.5, -4, 0), V(5.5, 0, 0)), False)
sketch3.addGeometry(Part.LineSegment(V(18.5, -11.7, 0), V(18.5, -15.5, 0)), False)
sketch3.addGeometry(Part.ArcOfCircle(Part.Circle(V(15.5, -15.5, 0), V(0, 0, 1), 3), math.radians(-90), math.radians(0)), False)
sketch3.addGeometry(Part.LineSegment(V(15.5, -18.5, 0), V(11.7, -18.5, 0)), False)
sketch3.addGeometry(Part.LineSegment(V(11.7, -18.5, 0), V(11.7, -11.7, 0)), False)
sketch3.addGeometry(Part.LineSegment(V(11.7, -11.7, 0), V(18.5, -11.7, 0)), False)
sketch3.addConstraint(Sketcher.Constraint("Coincident", 0, 2, 1, 2))
sketch3.addConstraint(Sketcher.Constraint("Coincident", 1, 1, 2, 1))
sketch3.addConstraint(Sketcher.Constraint("Coincident", 2, 2, 3, 1))
sketch3.addConstraint(Sketcher.Constraint("Coincident", 3, 2, 4, 1))
sketch3.addConstraint(Sketcher.Constraint("Coincident", 4, 2, 5, 1))
sketch3.addConstraint(Sketcher.Constraint("Coincident", 5, 2, 6, 1))
sketch3.addConstraint(Sketcher.Constraint("Coincident", 6, 2, 7, 1))
sketch3.addConstraint(Sketcher.Constraint("Coincident", 7, 2, 8, 1))
sketch3.addConstraint(Sketcher.Constraint("Coincident", 8, 2, 9, 1))
sketch3.addConstraint(Sketcher.Constraint("Coincident", 9, 2, 10, 1))
sketch3.addConstraint(Sketcher.Constraint("Coincident", 10, 2, 11, 1))
sketch3.addConstraint(Sketcher.Constraint("Coincident", 11, 2, 12, 1))
sketch3.addConstraint(Sketcher.Constraint("Tangent", 12, 2, 13, 1))
sketch3.addConstraint(Sketcher.Constraint("Tangent", 13, 2, 14, 1))
sketch3.addConstraint(Sketcher.Constraint("Coincident", 14, 2, 15, 1))
sketch3.addConstraint(Sketcher.Constraint("Coincident", 15, 2, 16, 1))
sketch3.addConstraint(Sketcher.Constraint("Coincident", 16, 2, 17, 1))
sketch3.addConstraint(Sketcher.Constraint("Coincident", 17, 2, 18, 1))
sketch3.addConstraint(Sketcher.Constraint("Coincident", 18, 2, 19, 1))
sketch3.addConstraint(Sketcher.Constraint("Coincident", 19, 2, 20, 1))
sketch3.addConstraint(Sketcher.Constraint("Coincident", 20, 2, 21, 1))
sketch3.addConstraint(Sketcher.Constraint("Coincident", 21, 2, 22, 1))
sketch3.addConstraint(Sketcher.Constraint("Coincident", 22, 2, 23, 1))
sketch3.addConstraint(Sketcher.Constraint("Coincident", 23, 2, 0, 1))
sketch3.addConstraint(Sketcher.Constraint("Tangent", 24, 2, 25, 2))
sketch3.addConstraint(Sketcher.Constraint("Tangent", 25, 1, 26, 1))
sketch3.addConstraint(Sketcher.Constraint("Coincident", 26, 2, 27, 1))
sketch3.addConstraint(Sketcher.Constraint("Coincident", 27, 2, 28, 1))
sketch3.addConstraint(Sketcher.Constraint("Coincident", 28, 2, 24, 1))
sketch3.addConstraint(Sketcher.Constraint("Horizontal", 0))
sketch3.addConstraint(Sketcher.Constraint("Vertical", 2))
sketch3.addConstraint(Sketcher.Constraint("Horizontal", 3))
sketch3.addConstraint(Sketcher.Constraint("Vertical", 5))
sketch3.addConstraint(Sketcher.Constraint("Horizontal", 6))
sketch3.addConstraint(Sketcher.Constraint("Vertical", 7))
sketch3.addConstraint(Sketcher.Constraint("Horizontal", 8))
sketch3.addConstraint(Sketcher.Constraint("Vertical", 9))
sketch3.addConstraint(Sketcher.Constraint("Horizontal", 10))
sketch3.addConstraint(Sketcher.Constraint("Vertical", 11))
sketch3.addConstraint(Sketcher.Constraint("Horizontal", 12))
sketch3.addConstraint(Sketcher.Constraint("Vertical", 14))
sketch3.addConstraint(Sketcher.Constraint("Horizontal", 15))
sketch3.addConstraint(Sketcher.Constraint("Vertical", 16))
sketch3.addConstraint(Sketcher.Constraint("Horizontal", 17))
sketch3.addConstraint(Sketcher.Constraint("Vertical", 18))
sketch3.addConstraint(Sketcher.Constraint("Horizontal", 19))
sketch3.addConstraint(Sketcher.Constraint("Vertical", 20))
sketch3.addConstraint(Sketcher.Constraint("Horizontal", 21))
sketch3.addConstraint(Sketcher.Constraint("Vertical", 23))
sketch3.addConstraint(Sketcher.Constraint("Vertical", 24))
sketch3.addConstraint(Sketcher.Constraint("Horizontal", 26))
sketch3.addConstraint(Sketcher.Constraint("Vertical", 27))
sketch3.addConstraint(Sketcher.Constraint("Horizontal", 28))
sketch3.addConstraint(Sketcher.Constraint("Coincident", 1, 3, -1, 1))
sketch3.addConstraint(Sketcher.Constraint("Coincident", 25, 3, 13, 3))
sketch3.addConstraint(Sketcher.Constraint("PointOnObject", 0, 2, -1))
sketch3.addConstraint(Sketcher.Constraint("PointOnObject", 1, 1, -2))
sketch3.addConstraint(Sketcher.Constraint("Parallel", 4, 22))
sketch3.addConstraint(Sketcher.Constraint("Horizontal", 25, 3, 7, 2))
sketch3.addConstraint(Sketcher.Constraint("Horizontal", 4, 2, 27, 2))
sketch3.addConstraint(Sketcher.Constraint("Vertical", 12, 2, 17, 2))
sketch3.addConstraint(Sketcher.Constraint("Vertical", 21, 2, 26, 2))
sketch3.addConstraint(Sketcher.Constraint("Equal", 10, 15))
sketch3.addConstraint(Sketcher.Constraint("Equal", 0, 2))
sketch3.addConstraint(Sketcher.Constraint("Equal", 21, 5))
sketch3.addConstraint(Sketcher.Constraint("Equal", 19, 7))
sketch3.addConstraint(Sketcher.Constraint("Equal", 17, 9))
sketch3.addConstraint(Sketcher.Constraint("Equal", 11, 16))
sketch3.addConstraint(Sketcher.Constraint("Equal", 8, 18))
sketch3.addConstraint(Sketcher.Constraint("Equal", 3, 23))
sketch3.addConstraint(Sketcher.Constraint("Equal", 4, 22))
sketch3.addConstraint(Sketcher.Constraint("Radius", 25, Q("3 mm")))
sketch3.addConstraint(Sketcher.Constraint("Radius", 1, Q("3.4 mm")))
sketch3.addConstraint(Sketcher.Constraint("Radius", 13, Q("4.5 mm")))
sketch3.addConstraint(Sketcher.Constraint("DistanceX", 3, 1, 3, 2, Q("4 mm")))
sketch3.addConstraint(Sketcher.Constraint("DistanceX", 10, 1, 10, 2, Q("1 mm")))
sketch3.addConstraint(Sketcher.Constraint("Angle", 4, Q("-45 deg")))
sketch3.addConstraint(Sketcher.Constraint("DistanceX", 0, 2, 0, 1, Q("2.1 mm")))
sketch3.addConstraint(Sketcher.Constraint("DistanceX", 8, 2, 8, 1, Q("2.3 mm")))
sketch3.addConstraint(Sketcher.Constraint("DistanceX", 19, 1, 19, 2, Q("2.7 mm")))
sketch3.addConstraint(Sketcher.Constraint("DistanceY", 9, 2, -1, 1, Q("19 mm")))
sketch3.addConstraint(Sketcher.Constraint("DistanceX", 21, 2, 21, 1, Q("6.51 mm")))
sketch3.addConstraint(Sketcher.Constraint("DistanceX", 6, 2, 6, 1, Q("2.504695 mm")))
sketch3.addConstraint(Sketcher.Constraint("DistanceY", 14, 1, 14, 2, Q("11.534405 mm")))
sketch3.setExpression("Constraints[71]", "Params.sketch3_radius")
sketch3.setExpression("Constraints[72]", "Params.sketch3_radius2")
sketch3.setExpression("Constraints[73]", "Params.sketch3_radius3")
sketch3.setExpression("Constraints[74]", "Params.sketch3_width")
sketch3.setExpression("Constraints[75]", "Params.sketch3_width2")
pad3 = doc.addObject("PartDesign::Pad", "Pad002")
body.addObject(pad3)
pad3.Profile = sketch3
pad3.setExpression("Length", "Params.pad3_length")

doc.recompute()
